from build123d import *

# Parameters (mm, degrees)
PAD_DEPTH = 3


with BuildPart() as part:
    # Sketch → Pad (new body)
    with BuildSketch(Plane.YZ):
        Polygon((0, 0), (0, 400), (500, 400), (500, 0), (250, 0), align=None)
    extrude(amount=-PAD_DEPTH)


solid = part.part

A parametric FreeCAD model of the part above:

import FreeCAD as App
import Part
import Sketcher
Q = App.Units.Quantity


def add_polygon(sketch, points):
    """Adds a closed chain of lines whose ends are joined by coincident constraints."""
    first, n = sketch.GeometryCount, len(points)
    for a, b in zip(points, points[1:] + points[:1]):
        sketch.addGeometry(Part.LineSegment(App.Vector(*a, 0), App.Vector(*b, 0)), False)
    for i in range(n):
        sketch.addConstraint(Sketcher.Constraint("Coincident", first + i, 2, first + (i + 1) % n, 1))

doc = App.newDocument("Part")
params = doc.addObject("Spreadsheet::Sheet", "Params")
for row, (alias, value) in enumerate([
    ("sketch1_width", "500 mm"),
    ("sketch1_height", "400 mm"),
    ("pad1_length", "3 mm"),
], start=1):
    params.set(f"A{row}", alias)
    params.set(f"B{row}", "=" + value)
    params.setAlias(f"B{row}", alias)

body = doc.addObject("PartDesign::Body", "Body")

sketch1 = body.newObject("Sketcher::SketchObject", "Sketch")
sketch1.AttachmentSupport = (doc.getObject("YZ_Plane"), [""])
sketch1.MapMode = "FlatFace"
add_polygon(sketch1, [(0, 400), (0, 0), (500, 0), (500, 400)])
sketch1.addConstraint([
    Sketcher.Constraint("Vertical", 0),
    Sketcher.Constraint("Horizontal", 1),
    Sketcher.Constraint("Vertical", 2),
    Sketcher.Constraint("Horizontal", 3),
    Sketcher.Constraint("Coincident", 0, 2, -1, 1),
    Sketcher.Constraint("DistanceX", 1, 1, 1, 2, Q("500 mm")),
    Sketcher.Constraint("DistanceY", 0, 2, 0, 1, Q("400 mm")),
])
sketch1.setExpression("Constraints[9]", "Params.sketch1_width")
sketch1.setExpression("Constraints[10]", "Params.sketch1_height")
pad1 = body.newObject("PartDesign::Pad", "Pad")
pad1.Profile = sketch1
pad1.setExpression("Length", "Params.pad1_length")
pad1.Reversed = True

doc.recompute()
